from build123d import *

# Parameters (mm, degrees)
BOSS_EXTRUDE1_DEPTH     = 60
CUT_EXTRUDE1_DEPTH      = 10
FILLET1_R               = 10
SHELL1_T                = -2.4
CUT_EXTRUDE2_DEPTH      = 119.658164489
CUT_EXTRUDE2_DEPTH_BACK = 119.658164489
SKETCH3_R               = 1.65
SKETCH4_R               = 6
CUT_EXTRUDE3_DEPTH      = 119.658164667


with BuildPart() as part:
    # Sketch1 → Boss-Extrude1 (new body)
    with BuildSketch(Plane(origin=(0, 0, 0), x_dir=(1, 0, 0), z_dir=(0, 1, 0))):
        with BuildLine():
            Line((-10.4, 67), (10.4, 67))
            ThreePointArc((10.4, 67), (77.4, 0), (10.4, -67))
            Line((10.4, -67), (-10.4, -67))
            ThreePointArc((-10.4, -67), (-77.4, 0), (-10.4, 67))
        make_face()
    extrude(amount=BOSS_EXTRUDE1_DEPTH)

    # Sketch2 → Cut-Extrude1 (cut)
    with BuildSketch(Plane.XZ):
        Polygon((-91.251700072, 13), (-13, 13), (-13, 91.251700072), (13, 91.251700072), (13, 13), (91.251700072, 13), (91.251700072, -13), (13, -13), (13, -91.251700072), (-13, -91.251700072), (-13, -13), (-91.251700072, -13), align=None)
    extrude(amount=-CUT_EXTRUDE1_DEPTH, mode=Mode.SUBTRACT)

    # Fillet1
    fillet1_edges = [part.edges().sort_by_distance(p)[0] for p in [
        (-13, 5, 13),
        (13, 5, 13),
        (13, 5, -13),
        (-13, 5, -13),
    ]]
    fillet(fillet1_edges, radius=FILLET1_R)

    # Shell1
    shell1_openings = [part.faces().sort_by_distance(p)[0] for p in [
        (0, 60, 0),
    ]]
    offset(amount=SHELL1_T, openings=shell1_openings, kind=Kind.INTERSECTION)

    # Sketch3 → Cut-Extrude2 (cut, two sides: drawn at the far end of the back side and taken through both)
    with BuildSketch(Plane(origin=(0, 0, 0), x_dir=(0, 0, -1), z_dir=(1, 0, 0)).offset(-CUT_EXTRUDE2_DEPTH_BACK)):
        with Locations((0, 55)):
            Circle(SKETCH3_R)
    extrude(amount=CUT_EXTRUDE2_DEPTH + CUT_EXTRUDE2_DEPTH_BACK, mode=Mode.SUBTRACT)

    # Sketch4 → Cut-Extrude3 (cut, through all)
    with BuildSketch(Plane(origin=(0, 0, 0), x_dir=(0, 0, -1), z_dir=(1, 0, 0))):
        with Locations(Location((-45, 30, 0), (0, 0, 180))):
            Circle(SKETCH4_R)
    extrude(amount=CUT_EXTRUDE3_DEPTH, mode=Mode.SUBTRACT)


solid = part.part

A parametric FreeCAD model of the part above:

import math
import FreeCAD as App
import Part
import Sketcher
from FreeCAD import Vector
Q = App.Units.Quantity


def edges_at(feature, points):
    """Names of the edges that pass closest to the given points."""
    edges = feature.Shape.Edges
    near = lambda p: min(range(len(edges)), key=lambda i: edges[i].distToShape(Part.Vertex(*p))[0])
    return sorted({f"Edge{near(p) + 1}" for p in points})


def faces_at(feature, points):
    """Names of the faces that lie closest to the given points."""
    faces = feature.Shape.Faces
    near = lambda p: min(range(len(faces)), key=lambda i: faces[i].distToShape(Part.Vertex(*p))[0])
    return sorted({f"Face{near(p) + 1}" for p in points})

doc = App.newDocument("Part")
params = doc.addObject("Spreadsheet::Sheet", "Params")
for row, (alias, value) in enumerate([
    ("sketch1_radius", "67 mm"),
    ("sketch1_width", "20.8 mm"),
    ("pad1_length", "60 mm"),
    ("sketch2_width", "26 mm"),
    ("pocket1_length", "10 mm"),
    ("fillet_radius", "10 mm"),
    ("thickness_wall", "2.4 mm"),
    ("sketch3_diameter", "3.3 mm"),
    ("sketch4_diameter", "12 mm"),
], start=1):
    params.set(f"A{row}", alias)
    params.set(f"B{row}", "=" + value)
    params.setAlias(f"B{row}", alias)

body = doc.addObject("PartDesign::Body", "Body")

# Sketch on XZ plane
sketch1 = body.newObject("Sketcher::SketchObject", "Sketch")
sketch1.AttachmentSupport = (doc.getObject("XZ_Plane"), [""])
sketch1.MapMode = "FlatFace"
sketch1.addGeometry([
    Part.LineSegment(Vector(10, -67, 0), Vector(-10, -67, 0)),
    Part.ArcOfCircle(Part.Circle(Vector(-10, 0, 0), Vector(0, 0, 1), 67), math.radians(90), math.radians(270)),
    Part.LineSegment(Vector(-10, 67, 0), Vector(10, 67, 0)),
    Part.ArcOfCircle(Part.Circle(Vector(10, 0, 0), Vector(0, 0, 1), 67), math.radians(-90), math.radians(90)),
], False)
sketch1.addConstraint([
    Sketcher.Constraint("Tangent", 0, 2, 1, 2),
    Sketcher.Constraint("Tangent", 1, 1, 2, 1),
    Sketcher.Constraint("Tangent", 2, 2, 3, 2),
    Sketcher.Constraint("Tangent", 3, 1, 0, 1),
    Sketcher.Constraint("Horizontal", 0),
    Sketcher.Constraint("Horizontal", 2),
    Sketcher.Constraint("Symmetric", 1, 3, 3, 3, -1, 1),
    Sketcher.Constraint("Radius", 1, Q("67 mm")),
    Sketcher.Constraint("DistanceX", 0, 2, 0, 1, Q("20.8 mm")),
])
sketch1.setExpression("Constraints[7]", "Params.sketch1_radius")
sketch1.setExpression("Constraints[8]", "Params.sketch1_width")
pad1 = body.newObject("PartDesign::Pad", "Pad")
pad1.Profile = sketch1
pad1.setExpression("Length", "Params.pad1_length")
pad1.Reversed = True

# Sketch on XZ plane
sketch2 = body.newObject("Sketcher::SketchObject", "Sketch001")
sketch2.AttachmentSupport = (doc.getObject("XZ_Plane"), [""])
sketch2.MapMode = "FlatFace"
sketch2.addGeometry([
    Part.LineSegment(Vector(-13, 13, 0), Vector(-91, 13, 0)),  # 0
    Part.LineSegment(Vector(-91, 13, 0), Vector(-91, -13, 0)),  # 1
    Part.LineSegment(Vector(-91, -13, 0), Vector(-13, -13, 0)),  # 2
    Part.LineSegment(Vector(-13, -13, 0), Vector(-13, -91, 0)),  # 3
    Part.LineSegment(Vector(-13, -91, 0), Vector(13, -91, 0)),  # 4
    Part.LineSegment(Vector(13, -91, 0), Vector(13, -13, 0)),  # 5
    Part.LineSegment(Vector(13, -13, 0), Vector(91, -13, 0)),  # 6
    Part.LineSegment(Vector(91, -13, 0), Vector(91, 13, 0)),  # 7
    Part.LineSegment(Vector(91, 13, 0), Vector(13, 13, 0)),  # 8
    Part.LineSegment(Vector(13, 13, 0), Vector(13, 91, 0)),  # 9
    Part.LineSegment(Vector(13, 91, 0), Vector(-13, 91, 0)),  # 10
    Part.LineSegment(Vector(-13, 91, 0), Vector(-13, 13, 0)),  # 11
], False)
sketch2.addConstraint([
    Sketcher.Constraint("Coincident", 0, 2, 1, 1),
    Sketcher.Constraint("Coincident", 1, 2, 2, 1),
    Sketcher.Constraint("Coincident", 2, 2, 3, 1),
    Sketcher.Constraint("Coincident", 3, 2, 4, 1),
    Sketcher.Constraint("Coincident", 4, 2, 5, 1),
    Sketcher.Constraint("Coincident", 5, 2, 6, 1),
    Sketcher.Constraint("Coincident", 6, 2, 7, 1),
    Sketcher.Constraint("Coincident", 7, 2, 8, 1),
    Sketcher.Constraint("Coincident", 8, 2, 9, 1),
    Sketcher.Constraint("Coincident", 9, 2, 10, 1),
    Sketcher.Constraint("Coincident", 10, 2, 11, 1),
    Sketcher.Constraint("Coincident", 11, 2, 0, 1),
    Sketcher.Constraint("Horizontal", 0),
    Sketcher.Constraint("Vertical", 1),
    Sketcher.Constraint("Horizontal", 2),
    Sketcher.Constraint("Vertical", 3),
    Sketcher.Constraint("Horizontal", 4),
    Sketcher.Constraint("Vertical", 5),
    Sketcher.Constraint("Horizontal", 6),
    Sketcher.Constraint("Vertical", 7),
    Sketcher.Constraint("Horizontal", 8),
    Sketcher.Constraint("Vertical", 9),
    Sketcher.Constraint("Horizontal", 10),
    Sketcher.Constraint("Vertical", 11),
    Sketcher.Constraint("Symmetric", 0, 2, 6, 2, -1, 1),
    Sketcher.Constraint("Symmetric", 2, 2, 8, 2, -1, 1),
    Sketcher.Constraint("Symmetric", 4, 2, 10, 2, -1, 1),
    Sketcher.Constraint("Symmetric", 2, 2, 5, 2, -2),
    Sketcher.Constraint("Equal", 10, 1),
    Sketcher.Constraint("Equal", 8, 3),
    Sketcher.Constraint("DistanceX", 4, 1, 4, 2, Q("26 mm")),
    Sketcher.Constraint("DistanceX", 0, 2, 0, 1, Q("78.2517 mm")),
])
sketch2.setExpression("Constraints[30]", "Params.sketch2_width")
pocket1 = body.newObject("PartDesign::Pocket", "Pocket")
pocket1.Profile = sketch2
pocket1.setExpression("Length", "Params.pocket1_length")
doc.recompute()

fillet = body.newObject("PartDesign::Fillet", "Fillet")
fillet.Base = (pocket1, edges_at(pocket1, [
    (-13, 5, 13),
    (13, 5, 13),
    (13, 5, -13),
    (-13, 5, -13),
]))
fillet.setExpression("Radius", "Params.fillet_radius")
doc.recompute()

thickness = body.newObject("PartDesign::Thickness", "Thickness")
thickness.Base = (fillet, faces_at(fillet, [(0, 60, 0)]))
thickness.setExpression("Value", "Params.thickness_wall")
thickness.Reversed = True
thickness.Join = "Intersection"

# Sketch on YZ plane
sketch3 = body.newObject("Sketcher::SketchObject", "Sketch002")
sketch3.AttachmentSupport = (doc.getObject("YZ_Plane"), [""])
sketch3.MapMode = "FlatFace"
sketch3.addGeometry(Part.Circle(Vector(55, 0, 0), Vector(0, 0, 1), 1.6), False)
sketch3.addConstraint([
    Sketcher.Constraint("PointOnObject", 0, 3, -1),
    Sketcher.Constraint("Diameter", 0, Q("3.3 mm")),
    Sketcher.Constraint("DistanceX", -1, 1, 0, 3, Q("55 mm")),
])
sketch3.setExpression("Constraints[1]", "Params.sketch3_diameter")
pocket2 = body.newObject("PartDesign::Pocket", "Pocket001")
pocket2.Profile = sketch3
pocket2.Type = "ThroughAll"
pocket2.Midplane = True

# Sketch on YZ plane
sketch4 = body.newObject("Sketcher::SketchObject", "Sketch003")
sketch4.AttachmentSupport = (doc.getObject("YZ_Plane"), [""])
sketch4.MapMode = "FlatFace"
sketch4.addGeometry(Part.Circle(Vector(30, 45, 0), Vector(0, 0, 1), 6), False)
sketch4.addConstraint([
    Sketcher.Constraint("Diameter", 0, Q("12 mm")),
    Sketcher.Constraint("DistanceX", -1, 1, 0, 3, Q("30 mm")),
    Sketcher.Constraint("DistanceY", -1, 1, 0, 3, Q("45 mm")),
])
sketch4.setExpression("Constraints[0]", "Params.sketch4_diameter")
pocket3 = body.newObject("PartDesign::Pocket", "Pocket002")
pocket3.Profile = sketch4
pocket3.Type = "ThroughAll"
pocket3.Reversed = True

doc.recompute()
